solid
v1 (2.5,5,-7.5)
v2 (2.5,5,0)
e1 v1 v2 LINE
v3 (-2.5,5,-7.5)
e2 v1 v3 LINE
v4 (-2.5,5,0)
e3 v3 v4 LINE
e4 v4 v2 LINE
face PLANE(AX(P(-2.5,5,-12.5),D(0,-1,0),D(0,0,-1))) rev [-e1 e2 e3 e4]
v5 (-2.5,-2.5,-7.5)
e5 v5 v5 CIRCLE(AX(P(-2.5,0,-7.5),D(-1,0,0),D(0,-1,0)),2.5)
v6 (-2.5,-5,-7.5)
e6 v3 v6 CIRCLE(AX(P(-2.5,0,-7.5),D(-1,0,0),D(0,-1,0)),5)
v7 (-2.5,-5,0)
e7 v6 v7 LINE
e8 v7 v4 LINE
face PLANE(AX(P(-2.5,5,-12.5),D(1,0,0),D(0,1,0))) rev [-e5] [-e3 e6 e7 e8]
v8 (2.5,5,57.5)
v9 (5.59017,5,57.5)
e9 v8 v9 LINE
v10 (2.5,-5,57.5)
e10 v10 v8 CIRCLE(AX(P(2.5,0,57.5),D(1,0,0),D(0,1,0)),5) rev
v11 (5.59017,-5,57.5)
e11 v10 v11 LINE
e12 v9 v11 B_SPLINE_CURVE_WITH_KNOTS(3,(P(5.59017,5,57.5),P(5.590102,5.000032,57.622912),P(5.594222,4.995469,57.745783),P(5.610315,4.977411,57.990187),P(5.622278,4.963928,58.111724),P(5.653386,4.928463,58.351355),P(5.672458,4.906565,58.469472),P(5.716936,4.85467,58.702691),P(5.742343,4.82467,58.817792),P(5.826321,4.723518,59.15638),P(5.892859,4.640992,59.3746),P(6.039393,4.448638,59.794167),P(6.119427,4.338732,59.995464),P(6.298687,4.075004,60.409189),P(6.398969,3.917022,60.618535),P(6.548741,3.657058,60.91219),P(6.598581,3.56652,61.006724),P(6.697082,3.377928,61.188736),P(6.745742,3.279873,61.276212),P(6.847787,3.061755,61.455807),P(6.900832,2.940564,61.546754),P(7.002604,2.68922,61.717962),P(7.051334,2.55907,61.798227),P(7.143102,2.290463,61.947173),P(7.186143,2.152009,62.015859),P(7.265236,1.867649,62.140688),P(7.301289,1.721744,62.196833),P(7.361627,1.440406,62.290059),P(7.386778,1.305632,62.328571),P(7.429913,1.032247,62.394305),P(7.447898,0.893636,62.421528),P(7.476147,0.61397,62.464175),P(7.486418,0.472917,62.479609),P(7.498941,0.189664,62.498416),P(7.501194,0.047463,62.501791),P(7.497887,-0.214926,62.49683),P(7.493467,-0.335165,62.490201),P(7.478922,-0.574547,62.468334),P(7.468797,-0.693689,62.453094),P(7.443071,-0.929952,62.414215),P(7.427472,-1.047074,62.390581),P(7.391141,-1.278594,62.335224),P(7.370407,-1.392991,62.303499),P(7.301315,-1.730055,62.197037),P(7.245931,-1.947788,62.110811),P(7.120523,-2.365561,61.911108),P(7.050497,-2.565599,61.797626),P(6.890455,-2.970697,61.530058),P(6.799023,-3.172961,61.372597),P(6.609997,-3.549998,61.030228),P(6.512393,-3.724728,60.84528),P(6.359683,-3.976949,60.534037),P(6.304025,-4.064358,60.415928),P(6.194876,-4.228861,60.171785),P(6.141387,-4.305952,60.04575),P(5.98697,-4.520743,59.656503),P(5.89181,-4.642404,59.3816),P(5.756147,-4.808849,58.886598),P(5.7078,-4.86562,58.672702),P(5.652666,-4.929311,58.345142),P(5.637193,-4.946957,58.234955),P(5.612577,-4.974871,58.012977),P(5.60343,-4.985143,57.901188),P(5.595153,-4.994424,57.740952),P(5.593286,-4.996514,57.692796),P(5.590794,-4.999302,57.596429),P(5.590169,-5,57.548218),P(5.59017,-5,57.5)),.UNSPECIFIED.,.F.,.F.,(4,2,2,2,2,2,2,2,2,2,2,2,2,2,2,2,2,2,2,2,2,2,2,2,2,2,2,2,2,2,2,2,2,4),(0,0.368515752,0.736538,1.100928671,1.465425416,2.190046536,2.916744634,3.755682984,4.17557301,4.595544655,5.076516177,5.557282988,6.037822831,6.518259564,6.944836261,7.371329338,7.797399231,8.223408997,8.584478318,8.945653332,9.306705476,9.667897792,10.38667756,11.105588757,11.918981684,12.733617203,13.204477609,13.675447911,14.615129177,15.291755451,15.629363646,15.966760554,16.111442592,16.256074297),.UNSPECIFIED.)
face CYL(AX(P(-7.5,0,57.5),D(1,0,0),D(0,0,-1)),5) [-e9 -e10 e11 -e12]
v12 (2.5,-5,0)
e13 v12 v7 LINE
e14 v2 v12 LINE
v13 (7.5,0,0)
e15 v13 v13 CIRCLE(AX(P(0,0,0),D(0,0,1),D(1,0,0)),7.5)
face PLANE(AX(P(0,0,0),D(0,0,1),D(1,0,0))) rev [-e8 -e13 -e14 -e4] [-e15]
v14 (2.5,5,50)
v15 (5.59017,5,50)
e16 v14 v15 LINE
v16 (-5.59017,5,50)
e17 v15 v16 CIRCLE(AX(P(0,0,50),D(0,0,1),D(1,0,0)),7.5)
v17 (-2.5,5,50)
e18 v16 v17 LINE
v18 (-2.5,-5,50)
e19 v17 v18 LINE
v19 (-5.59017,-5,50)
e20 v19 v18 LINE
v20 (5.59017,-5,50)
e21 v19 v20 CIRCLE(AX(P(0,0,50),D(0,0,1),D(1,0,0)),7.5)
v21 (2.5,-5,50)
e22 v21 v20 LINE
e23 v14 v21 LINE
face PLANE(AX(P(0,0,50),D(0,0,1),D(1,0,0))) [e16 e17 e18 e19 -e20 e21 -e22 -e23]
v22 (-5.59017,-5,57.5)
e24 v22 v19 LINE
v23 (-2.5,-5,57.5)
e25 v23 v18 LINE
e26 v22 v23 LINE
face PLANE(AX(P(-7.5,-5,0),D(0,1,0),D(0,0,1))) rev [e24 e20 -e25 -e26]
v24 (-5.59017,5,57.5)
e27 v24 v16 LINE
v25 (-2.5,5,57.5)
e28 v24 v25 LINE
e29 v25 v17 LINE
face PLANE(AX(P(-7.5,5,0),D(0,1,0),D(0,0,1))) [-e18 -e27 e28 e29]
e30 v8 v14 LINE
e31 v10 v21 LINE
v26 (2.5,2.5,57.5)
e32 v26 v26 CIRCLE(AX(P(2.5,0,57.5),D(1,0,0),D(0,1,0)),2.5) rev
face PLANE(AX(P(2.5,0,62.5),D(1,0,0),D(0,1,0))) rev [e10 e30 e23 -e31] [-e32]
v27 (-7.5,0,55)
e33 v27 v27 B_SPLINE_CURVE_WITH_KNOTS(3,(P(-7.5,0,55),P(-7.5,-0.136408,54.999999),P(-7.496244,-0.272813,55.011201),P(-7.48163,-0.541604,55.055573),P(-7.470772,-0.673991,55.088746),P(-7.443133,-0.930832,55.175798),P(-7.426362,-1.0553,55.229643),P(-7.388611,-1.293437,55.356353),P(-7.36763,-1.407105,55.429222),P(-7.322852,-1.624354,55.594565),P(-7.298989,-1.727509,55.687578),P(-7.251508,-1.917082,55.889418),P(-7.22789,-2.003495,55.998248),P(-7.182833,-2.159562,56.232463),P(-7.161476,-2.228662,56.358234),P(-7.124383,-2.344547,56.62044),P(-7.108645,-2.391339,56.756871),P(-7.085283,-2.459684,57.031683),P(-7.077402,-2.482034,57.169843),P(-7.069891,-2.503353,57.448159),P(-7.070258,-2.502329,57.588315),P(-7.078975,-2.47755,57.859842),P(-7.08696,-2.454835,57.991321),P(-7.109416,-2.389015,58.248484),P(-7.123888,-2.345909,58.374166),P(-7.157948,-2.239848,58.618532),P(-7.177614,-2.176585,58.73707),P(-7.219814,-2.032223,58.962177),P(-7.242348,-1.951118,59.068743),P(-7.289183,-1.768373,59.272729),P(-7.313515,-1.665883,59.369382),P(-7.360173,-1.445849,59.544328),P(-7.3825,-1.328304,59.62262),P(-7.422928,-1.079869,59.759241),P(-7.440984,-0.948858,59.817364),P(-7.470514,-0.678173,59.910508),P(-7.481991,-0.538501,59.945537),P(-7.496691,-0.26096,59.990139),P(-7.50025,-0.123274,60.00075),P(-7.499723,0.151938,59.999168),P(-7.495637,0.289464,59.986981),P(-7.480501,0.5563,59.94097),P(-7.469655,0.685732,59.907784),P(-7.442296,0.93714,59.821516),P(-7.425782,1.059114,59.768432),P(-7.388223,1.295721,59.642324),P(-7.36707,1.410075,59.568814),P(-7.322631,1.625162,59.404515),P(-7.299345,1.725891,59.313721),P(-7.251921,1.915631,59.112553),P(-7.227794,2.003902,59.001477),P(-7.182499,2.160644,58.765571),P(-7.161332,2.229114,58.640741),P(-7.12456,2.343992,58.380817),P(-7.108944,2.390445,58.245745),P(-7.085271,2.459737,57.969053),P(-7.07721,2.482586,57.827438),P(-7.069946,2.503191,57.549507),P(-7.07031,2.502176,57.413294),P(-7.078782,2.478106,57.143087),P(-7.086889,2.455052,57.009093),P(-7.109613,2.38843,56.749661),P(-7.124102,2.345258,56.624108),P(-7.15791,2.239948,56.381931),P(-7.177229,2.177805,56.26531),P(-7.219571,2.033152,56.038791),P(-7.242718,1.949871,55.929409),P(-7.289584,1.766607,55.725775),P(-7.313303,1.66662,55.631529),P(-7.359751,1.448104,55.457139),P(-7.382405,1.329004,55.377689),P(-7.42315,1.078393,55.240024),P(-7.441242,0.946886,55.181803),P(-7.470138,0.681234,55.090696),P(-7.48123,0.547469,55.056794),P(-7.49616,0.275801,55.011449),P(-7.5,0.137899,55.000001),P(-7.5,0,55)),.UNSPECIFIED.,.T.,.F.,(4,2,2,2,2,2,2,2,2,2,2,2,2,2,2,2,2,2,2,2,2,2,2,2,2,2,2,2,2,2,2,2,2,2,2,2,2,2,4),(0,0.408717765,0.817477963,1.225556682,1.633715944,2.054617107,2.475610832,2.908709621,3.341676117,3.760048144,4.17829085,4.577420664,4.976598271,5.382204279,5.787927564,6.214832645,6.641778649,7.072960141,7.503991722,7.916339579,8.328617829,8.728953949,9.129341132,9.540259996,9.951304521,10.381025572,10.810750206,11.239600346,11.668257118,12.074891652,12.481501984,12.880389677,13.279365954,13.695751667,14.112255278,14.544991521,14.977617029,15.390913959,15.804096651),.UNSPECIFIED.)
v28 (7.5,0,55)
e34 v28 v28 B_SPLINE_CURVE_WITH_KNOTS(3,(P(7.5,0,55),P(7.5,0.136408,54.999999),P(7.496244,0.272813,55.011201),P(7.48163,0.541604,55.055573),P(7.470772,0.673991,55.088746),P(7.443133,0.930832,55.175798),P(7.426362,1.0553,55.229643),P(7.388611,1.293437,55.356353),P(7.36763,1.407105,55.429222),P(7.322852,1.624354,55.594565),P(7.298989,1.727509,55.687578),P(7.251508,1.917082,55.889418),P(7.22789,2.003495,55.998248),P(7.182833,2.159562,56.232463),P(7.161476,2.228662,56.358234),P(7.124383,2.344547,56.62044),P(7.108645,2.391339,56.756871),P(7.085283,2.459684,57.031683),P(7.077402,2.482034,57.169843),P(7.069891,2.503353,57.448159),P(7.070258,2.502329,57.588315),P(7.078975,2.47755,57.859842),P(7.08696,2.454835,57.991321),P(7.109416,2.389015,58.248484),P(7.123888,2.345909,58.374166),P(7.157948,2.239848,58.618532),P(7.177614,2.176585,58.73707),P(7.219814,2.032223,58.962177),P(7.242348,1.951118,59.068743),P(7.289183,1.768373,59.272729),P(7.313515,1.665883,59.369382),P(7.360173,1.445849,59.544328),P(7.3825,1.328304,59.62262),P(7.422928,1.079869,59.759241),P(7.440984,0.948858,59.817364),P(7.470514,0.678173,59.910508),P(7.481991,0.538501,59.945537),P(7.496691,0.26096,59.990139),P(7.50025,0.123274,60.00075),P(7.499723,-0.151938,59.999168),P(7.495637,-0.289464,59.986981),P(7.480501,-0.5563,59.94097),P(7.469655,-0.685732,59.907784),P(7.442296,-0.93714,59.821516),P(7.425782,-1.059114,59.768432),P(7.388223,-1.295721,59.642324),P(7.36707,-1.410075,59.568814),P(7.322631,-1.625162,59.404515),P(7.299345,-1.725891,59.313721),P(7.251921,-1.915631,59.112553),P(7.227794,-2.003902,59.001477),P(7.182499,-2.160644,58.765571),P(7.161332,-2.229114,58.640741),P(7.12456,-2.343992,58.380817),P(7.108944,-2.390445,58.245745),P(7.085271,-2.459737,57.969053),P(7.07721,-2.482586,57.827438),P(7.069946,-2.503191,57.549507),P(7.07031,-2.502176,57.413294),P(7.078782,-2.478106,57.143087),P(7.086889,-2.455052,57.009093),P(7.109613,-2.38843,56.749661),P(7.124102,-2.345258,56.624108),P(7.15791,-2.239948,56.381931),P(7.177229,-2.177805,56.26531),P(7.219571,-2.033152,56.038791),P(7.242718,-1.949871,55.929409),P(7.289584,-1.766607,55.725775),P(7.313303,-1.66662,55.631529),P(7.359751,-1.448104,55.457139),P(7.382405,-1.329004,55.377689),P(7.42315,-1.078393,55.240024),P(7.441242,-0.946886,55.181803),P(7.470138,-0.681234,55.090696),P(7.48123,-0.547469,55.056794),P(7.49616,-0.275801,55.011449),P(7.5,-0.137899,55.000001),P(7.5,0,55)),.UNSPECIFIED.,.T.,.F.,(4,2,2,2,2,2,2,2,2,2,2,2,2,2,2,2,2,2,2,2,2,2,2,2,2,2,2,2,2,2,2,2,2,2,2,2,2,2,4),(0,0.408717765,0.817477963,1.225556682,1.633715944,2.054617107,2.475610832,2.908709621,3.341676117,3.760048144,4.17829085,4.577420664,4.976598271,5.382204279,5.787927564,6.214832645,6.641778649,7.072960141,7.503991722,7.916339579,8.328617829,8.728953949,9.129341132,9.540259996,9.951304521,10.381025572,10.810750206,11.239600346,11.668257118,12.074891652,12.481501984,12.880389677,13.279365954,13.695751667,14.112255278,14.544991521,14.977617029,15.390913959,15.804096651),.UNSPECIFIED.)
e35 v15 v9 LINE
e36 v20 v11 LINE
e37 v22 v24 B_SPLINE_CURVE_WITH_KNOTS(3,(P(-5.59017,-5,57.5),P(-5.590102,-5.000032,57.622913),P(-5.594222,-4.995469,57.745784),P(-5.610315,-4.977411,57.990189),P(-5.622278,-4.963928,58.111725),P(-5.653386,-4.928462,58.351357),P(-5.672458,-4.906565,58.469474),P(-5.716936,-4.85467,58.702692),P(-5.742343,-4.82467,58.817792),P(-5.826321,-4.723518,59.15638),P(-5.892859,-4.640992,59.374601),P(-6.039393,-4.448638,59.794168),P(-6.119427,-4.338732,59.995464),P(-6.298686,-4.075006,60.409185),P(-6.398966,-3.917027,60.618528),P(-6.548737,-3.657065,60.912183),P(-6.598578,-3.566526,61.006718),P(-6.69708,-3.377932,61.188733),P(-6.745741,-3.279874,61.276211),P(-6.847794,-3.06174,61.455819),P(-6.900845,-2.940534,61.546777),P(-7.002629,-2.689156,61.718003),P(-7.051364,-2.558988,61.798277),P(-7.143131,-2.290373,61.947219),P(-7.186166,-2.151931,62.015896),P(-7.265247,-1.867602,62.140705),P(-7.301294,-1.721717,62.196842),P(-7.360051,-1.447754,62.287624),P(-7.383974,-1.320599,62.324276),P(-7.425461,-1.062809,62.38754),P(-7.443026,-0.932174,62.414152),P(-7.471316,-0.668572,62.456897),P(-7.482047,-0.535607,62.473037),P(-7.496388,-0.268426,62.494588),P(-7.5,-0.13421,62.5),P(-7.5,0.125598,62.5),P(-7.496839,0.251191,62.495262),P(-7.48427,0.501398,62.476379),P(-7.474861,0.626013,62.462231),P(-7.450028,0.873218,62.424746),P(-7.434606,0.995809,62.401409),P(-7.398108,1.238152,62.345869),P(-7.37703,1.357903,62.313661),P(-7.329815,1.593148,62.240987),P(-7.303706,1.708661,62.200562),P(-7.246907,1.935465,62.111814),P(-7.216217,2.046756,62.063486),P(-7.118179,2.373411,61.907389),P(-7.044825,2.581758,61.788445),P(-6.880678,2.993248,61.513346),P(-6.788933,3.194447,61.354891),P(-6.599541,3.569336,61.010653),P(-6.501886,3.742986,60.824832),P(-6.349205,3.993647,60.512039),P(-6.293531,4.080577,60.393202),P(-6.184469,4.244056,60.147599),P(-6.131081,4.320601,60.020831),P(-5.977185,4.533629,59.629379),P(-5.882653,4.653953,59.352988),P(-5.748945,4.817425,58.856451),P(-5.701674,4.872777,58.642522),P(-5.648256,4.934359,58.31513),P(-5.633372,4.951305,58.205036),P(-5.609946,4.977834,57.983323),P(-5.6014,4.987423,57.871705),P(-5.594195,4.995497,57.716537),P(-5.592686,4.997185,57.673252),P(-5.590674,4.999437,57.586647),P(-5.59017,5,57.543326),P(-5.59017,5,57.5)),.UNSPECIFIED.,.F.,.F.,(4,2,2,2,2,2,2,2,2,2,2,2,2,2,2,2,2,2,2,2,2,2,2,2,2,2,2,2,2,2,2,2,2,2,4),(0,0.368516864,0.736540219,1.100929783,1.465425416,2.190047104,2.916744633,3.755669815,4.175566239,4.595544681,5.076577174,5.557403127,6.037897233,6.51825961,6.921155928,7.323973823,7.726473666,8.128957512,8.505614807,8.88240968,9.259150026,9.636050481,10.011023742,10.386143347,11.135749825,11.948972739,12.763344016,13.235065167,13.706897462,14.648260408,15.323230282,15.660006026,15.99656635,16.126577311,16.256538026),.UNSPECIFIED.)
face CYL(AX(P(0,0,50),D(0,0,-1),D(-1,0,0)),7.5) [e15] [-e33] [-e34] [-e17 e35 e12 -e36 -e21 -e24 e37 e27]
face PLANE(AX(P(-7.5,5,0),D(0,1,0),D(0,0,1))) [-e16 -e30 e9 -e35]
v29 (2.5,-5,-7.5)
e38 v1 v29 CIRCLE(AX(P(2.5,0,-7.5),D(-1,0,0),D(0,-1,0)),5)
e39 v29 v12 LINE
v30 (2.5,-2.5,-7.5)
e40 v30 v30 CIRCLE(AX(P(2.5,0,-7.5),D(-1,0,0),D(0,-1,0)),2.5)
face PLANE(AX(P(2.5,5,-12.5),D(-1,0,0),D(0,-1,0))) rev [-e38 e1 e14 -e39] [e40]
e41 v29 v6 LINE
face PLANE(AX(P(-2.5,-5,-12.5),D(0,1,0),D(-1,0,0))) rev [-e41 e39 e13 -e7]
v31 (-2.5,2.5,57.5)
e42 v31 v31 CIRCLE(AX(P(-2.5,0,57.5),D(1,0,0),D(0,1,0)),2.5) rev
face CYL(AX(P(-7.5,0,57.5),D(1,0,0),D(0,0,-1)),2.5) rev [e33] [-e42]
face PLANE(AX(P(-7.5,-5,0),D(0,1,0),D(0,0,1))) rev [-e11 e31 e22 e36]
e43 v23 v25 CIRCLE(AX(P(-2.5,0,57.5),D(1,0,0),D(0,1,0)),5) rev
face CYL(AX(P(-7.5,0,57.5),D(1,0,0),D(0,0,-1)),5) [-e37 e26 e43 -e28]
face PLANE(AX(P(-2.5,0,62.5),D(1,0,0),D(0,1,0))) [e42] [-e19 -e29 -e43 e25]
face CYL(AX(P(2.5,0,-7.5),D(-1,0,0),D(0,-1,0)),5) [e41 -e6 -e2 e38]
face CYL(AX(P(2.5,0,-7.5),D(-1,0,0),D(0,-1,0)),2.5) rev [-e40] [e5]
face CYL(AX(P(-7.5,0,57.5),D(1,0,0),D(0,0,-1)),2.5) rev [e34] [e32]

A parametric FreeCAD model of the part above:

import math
import FreeCAD as App
import Part
import Sketcher

V = App.Vector
Q = App.Units.Quantity

doc = App.newDocument("Part")
body = doc.addObject("PartDesign::Body", "Body")

sketch1 = doc.addObject("Sketcher::SketchObject", "Sketch")
body.addObject(sketch1)
sketch1.AttachmentSupport = (doc.XY_Plane, [""])
sketch1.MapMode = "FlatFace"
sketch1.addGeometry(Part.Circle(V(0, 0, 0), V(0, 0, 1), 8), False)
sketch1.addConstraint([
    Sketcher.Constraint("Coincident", 0, 3, -1, 1),
    Sketcher.Constraint("Diameter", 0, Q("15 mm")),
])
pad1 = doc.addObject("PartDesign::Pad", "Pad")
body.addObject(pad1)
pad1.Profile = sketch1
pad1.Length = 50

sketch2 = doc.addObject("Sketcher::SketchObject", "Sketch001")
body.addObject(sketch2)
sketch2.AttachmentSupport = (doc.XY_Plane, [""])
sketch2.MapMode = "FlatFace"
sketch2.addGeometry([
    Part.LineSegment(V(2, 5, 0), V(2, -5, 0)),
    Part.LineSegment(V(2, -5, 0), V(-2, -5, 0)),
    Part.LineSegment(V(-2, -5, 0), V(-2, 5, 0)),
    Part.LineSegment(V(-2, 5, 0), V(2, 5, 0)),
], False)
sketch2.addConstraint([
    Sketcher.Constraint("Coincident", 0, 2, 1, 1),
    Sketcher.Constraint("Coincident", 1, 2, 2, 1),
    Sketcher.Constraint("Coincident", 2, 2, 3, 1),
    Sketcher.Constraint("Coincident", 3, 2, 0, 1),
    Sketcher.Constraint("Vertical", 0),
    Sketcher.Constraint("Horizontal", 1),
    Sketcher.Constraint("Vertical", 2),
    Sketcher.Constraint("Horizontal", 3),
    Sketcher.Constraint("Symmetric", 0, 2, 2, 2, -1, 1),
    Sketcher.Constraint("DistanceX", 1, 2, 1, 1, Q("5 mm")),
    Sketcher.Constraint("DistanceY", 0, 2, 0, 1, Q("10 mm")),
])
pad2 = doc.addObject("PartDesign::Pad", "Pad001")
body.addObject(pad2)
pad2.Profile = sketch2
pad2.Length = 12.5
pad2.Reversed = True

sketch3 = doc.addObject("Sketcher::SketchObject", "Sketch002")
body.addObject(sketch3)
sketch3.AttachmentSupport = (doc.YZ_Plane, [""])
sketch3.MapMode = "FlatFace"
sketch3.AttachmentOffset = App.Placement(V(0, 0, -2.5), App.Rotation())
sketch3.addGeometry([
    Part.ArcOfCircle(Part.Circle(V(0, -7.5, 0), V(0, 0, 1), 5), math.radians(180), math.radians(270)),
    Part.LineSegment(V(0, -12.5, 0), V(-5, -12.5, 0)),
    Part.LineSegment(V(-5, -12.5, 0), V(-5, -7.5, 0)),
    Part.ArcOfCircle(Part.Circle(V(0, -7.5, 0), V(0, 0, 1), 5), math.radians(-90), math.radians(0)),
    Part.LineSegment(V(5, -7.5, 0), V(5, -12.5, 0)),
    Part.LineSegment(V(5, -12.5, 0), V(0, -12.5, 0)),
    Part.Circle(V(0, -7.5, 0), V(0, 0, 1), 2.5),
], False)
sketch3.addConstraint([
    Sketcher.Constraint("Tangent", 0, 2, 1, 1),
    Sketcher.Constraint("Coincident", 1, 2, 2, 1),
    Sketcher.Constraint("Tangent", 2, 2, 0, 1),
    Sketcher.Constraint("Tangent", 3, 2, 4, 1),
    Sketcher.Constraint("Coincident", 4, 2, 5, 1),
    Sketcher.Constraint("Tangent", 5, 2, 3, 1),
    Sketcher.Constraint("Horizontal", 1),
    Sketcher.Constraint("Vertical", 2),
    Sketcher.Constraint("Vertical", 4),
    Sketcher.Constraint("Horizontal", 5),
    Sketcher.Constraint("Coincident", 3, 3, 0, 3),
    Sketcher.Constraint("Coincident", 6, 3, 0, 3),
    Sketcher.Constraint("Equal", 0, 3),
    Sketcher.Constraint("PointOnObject", 0, 3, -2),
    Sketcher.Constraint("Diameter", 6, Q("5 mm")),
    Sketcher.Constraint("Radius", 0, Q("5 mm")),
    Sketcher.Constraint("DistanceY", 0, 3, -1, 1, Q("7.5 mm")),
])
pocket1 = doc.addObject("PartDesign::Pocket", "Pocket")
body.addObject(pocket1)
pocket1.Profile = sketch3
pocket1.Length = 5
pocket1.Reversed = True

sketch4 = doc.addObject("Sketcher::SketchObject", "Sketch003")
body.addObject(sketch4)
sketch4.AttachmentSupport = (doc.YZ_Plane, [""])
sketch4.MapMode = "FlatFace"
sketch4.addGeometry([
    Part.LineSegment(V(-5, 50, 0), V(5, 50, 0)),
    Part.LineSegment(V(5, 50, 0), V(5, 57.5, 0)),
    Part.ArcOfCircle(Part.Circle(V(0, 57.5, 0), V(0, 0, 1), 5), math.radians(0), math.radians(90)),
    Part.ArcOfCircle(Part.Circle(V(0, 57.5, 0), V(0, 0, 1), 5), math.radians(90), math.radians(180)),
    Part.LineSegment(V(-5, 57.5, 0), V(-5, 50, 0)),
    Part.Circle(V(0, 57.5, 0), V(0, 0, 1), 2.5),
], False)
sketch4.addConstraint([
    Sketcher.Constraint("Coincident", 0, 2, 1, 1),
    Sketcher.Constraint("Tangent", 1, 2, 2, 1),
    Sketcher.Constraint("Tangent", 2, 2, 3, 1),
    Sketcher.Constraint("Tangent", 3, 2, 4, 1),
    Sketcher.Constraint("Coincident", 4, 2, 0, 1),
    Sketcher.Constraint("Horizontal", 0),
    Sketcher.Constraint("Vertical", 1),
    Sketcher.Constraint("Vertical", 4),
    Sketcher.Constraint("Coincident", 5, 3, 2, 3),
    Sketcher.Constraint("Equal", 2, 3),
    Sketcher.Constraint("PointOnObject", 2, 3, -2),
    Sketcher.Constraint("PointOnObject", 2, 2, -2),
    Sketcher.Constraint("Diameter", 5, Q("5 mm")),
    Sketcher.Constraint("Radius", 2, Q("5 mm")),
    Sketcher.Constraint("DistanceY", 1, 1, 1, 2, Q("7.5 mm")),
    Sketcher.Constraint("DistanceY", -1, 1, 0, 2, Q("50 mm")),
])
pad3 = doc.addObject("PartDesign::Pad", "Pad002")
body.addObject(pad3)
pad3.Profile = sketch4
pad3.Type = "TwoLengths"
pad3.Length = 7.5
pad3.Length2 = 7.5

sketch5 = doc.addObject("Sketcher::SketchObject", "Sketch004")
body.addObject(sketch5)
sketch5.AttachmentSupport = (doc.XY_Plane, [""])
sketch5.MapMode = "FlatFace"
sketch5.AttachmentOffset = App.Placement(V(0, 0, 50), App.Rotation())
sketch5.addGeometry([
    Part.LineSegment(V(-2, 5, 0), V(-2, -5, 0)),
    Part.LineSegment(V(-2, -5, 0), V(2, -5, 0)),
    Part.LineSegment(V(2, -5, 0), V(2, 5, 0)),
    Part.LineSegment(V(2, 5, 0), V(-2, 5, 0)),
], False)
sketch5.addConstraint([
    Sketcher.Constraint("Coincident", 0, 2, 1, 1),
    Sketcher.Constraint("Coincident", 1, 2, 2, 1),
    Sketcher.Constraint("Coincident", 2, 2, 3, 1),
    Sketcher.Constraint("Coincident", 3, 2, 0, 1),
    Sketcher.Constraint("Vertical", 0),
    Sketcher.Constraint("Horizontal", 1),
    Sketcher.Constraint("Vertical", 2),
    Sketcher.Constraint("Horizontal", 3),
    Sketcher.Constraint("Symmetric", 0, 2, 2, 2, -1, 1),
    Sketcher.Constraint("DistanceX", 1, 1, 1, 2, Q("5 mm")),
    Sketcher.Constraint("DistanceY", 0, 2, 0, 1, Q("10 mm")),
])
pocket2 = doc.addObject("PartDesign::Pocket", "Pocket001")
body.addObject(pocket2)
pocket2.Profile = sketch5
pocket2.Length = 12.5
pocket2.Reversed = True

sketch6 = doc.addObject("Sketcher::SketchObject", "Sketch005")
body.addObject(sketch6)
sketch6.AttachmentSupport = (doc.XY_Plane, [""])
sketch6.MapMode = "FlatFace"
sketch6.AttachmentOffset = App.Placement(V(0, 0, 50), App.Rotation())
sketch6.addGeometry([
    Part.Circle(V(0, 0, 0), V(0, 0, 1), 10),
    Part.Circle(V(0, 0, 0), V(0, 0, 1), 8),
], False)
sketch6.addConstraint([
    Sketcher.Constraint("Coincident", 0, 3, -1, 1),
    Sketcher.Constraint("Coincident", 1, 3, -1, 1),
    Sketcher.Constraint("Diameter", 0, Q("20 mm")),
    Sketcher.Constraint("Diameter", 1, Q("15 mm")),
])
pocket3 = doc.addObject("PartDesign::Pocket", "Pocket002")
body.addObject(pocket3)
pocket3.Profile = sketch6
pocket3.Length = 12.5
pocket3.Reversed = True

doc.recompute()
